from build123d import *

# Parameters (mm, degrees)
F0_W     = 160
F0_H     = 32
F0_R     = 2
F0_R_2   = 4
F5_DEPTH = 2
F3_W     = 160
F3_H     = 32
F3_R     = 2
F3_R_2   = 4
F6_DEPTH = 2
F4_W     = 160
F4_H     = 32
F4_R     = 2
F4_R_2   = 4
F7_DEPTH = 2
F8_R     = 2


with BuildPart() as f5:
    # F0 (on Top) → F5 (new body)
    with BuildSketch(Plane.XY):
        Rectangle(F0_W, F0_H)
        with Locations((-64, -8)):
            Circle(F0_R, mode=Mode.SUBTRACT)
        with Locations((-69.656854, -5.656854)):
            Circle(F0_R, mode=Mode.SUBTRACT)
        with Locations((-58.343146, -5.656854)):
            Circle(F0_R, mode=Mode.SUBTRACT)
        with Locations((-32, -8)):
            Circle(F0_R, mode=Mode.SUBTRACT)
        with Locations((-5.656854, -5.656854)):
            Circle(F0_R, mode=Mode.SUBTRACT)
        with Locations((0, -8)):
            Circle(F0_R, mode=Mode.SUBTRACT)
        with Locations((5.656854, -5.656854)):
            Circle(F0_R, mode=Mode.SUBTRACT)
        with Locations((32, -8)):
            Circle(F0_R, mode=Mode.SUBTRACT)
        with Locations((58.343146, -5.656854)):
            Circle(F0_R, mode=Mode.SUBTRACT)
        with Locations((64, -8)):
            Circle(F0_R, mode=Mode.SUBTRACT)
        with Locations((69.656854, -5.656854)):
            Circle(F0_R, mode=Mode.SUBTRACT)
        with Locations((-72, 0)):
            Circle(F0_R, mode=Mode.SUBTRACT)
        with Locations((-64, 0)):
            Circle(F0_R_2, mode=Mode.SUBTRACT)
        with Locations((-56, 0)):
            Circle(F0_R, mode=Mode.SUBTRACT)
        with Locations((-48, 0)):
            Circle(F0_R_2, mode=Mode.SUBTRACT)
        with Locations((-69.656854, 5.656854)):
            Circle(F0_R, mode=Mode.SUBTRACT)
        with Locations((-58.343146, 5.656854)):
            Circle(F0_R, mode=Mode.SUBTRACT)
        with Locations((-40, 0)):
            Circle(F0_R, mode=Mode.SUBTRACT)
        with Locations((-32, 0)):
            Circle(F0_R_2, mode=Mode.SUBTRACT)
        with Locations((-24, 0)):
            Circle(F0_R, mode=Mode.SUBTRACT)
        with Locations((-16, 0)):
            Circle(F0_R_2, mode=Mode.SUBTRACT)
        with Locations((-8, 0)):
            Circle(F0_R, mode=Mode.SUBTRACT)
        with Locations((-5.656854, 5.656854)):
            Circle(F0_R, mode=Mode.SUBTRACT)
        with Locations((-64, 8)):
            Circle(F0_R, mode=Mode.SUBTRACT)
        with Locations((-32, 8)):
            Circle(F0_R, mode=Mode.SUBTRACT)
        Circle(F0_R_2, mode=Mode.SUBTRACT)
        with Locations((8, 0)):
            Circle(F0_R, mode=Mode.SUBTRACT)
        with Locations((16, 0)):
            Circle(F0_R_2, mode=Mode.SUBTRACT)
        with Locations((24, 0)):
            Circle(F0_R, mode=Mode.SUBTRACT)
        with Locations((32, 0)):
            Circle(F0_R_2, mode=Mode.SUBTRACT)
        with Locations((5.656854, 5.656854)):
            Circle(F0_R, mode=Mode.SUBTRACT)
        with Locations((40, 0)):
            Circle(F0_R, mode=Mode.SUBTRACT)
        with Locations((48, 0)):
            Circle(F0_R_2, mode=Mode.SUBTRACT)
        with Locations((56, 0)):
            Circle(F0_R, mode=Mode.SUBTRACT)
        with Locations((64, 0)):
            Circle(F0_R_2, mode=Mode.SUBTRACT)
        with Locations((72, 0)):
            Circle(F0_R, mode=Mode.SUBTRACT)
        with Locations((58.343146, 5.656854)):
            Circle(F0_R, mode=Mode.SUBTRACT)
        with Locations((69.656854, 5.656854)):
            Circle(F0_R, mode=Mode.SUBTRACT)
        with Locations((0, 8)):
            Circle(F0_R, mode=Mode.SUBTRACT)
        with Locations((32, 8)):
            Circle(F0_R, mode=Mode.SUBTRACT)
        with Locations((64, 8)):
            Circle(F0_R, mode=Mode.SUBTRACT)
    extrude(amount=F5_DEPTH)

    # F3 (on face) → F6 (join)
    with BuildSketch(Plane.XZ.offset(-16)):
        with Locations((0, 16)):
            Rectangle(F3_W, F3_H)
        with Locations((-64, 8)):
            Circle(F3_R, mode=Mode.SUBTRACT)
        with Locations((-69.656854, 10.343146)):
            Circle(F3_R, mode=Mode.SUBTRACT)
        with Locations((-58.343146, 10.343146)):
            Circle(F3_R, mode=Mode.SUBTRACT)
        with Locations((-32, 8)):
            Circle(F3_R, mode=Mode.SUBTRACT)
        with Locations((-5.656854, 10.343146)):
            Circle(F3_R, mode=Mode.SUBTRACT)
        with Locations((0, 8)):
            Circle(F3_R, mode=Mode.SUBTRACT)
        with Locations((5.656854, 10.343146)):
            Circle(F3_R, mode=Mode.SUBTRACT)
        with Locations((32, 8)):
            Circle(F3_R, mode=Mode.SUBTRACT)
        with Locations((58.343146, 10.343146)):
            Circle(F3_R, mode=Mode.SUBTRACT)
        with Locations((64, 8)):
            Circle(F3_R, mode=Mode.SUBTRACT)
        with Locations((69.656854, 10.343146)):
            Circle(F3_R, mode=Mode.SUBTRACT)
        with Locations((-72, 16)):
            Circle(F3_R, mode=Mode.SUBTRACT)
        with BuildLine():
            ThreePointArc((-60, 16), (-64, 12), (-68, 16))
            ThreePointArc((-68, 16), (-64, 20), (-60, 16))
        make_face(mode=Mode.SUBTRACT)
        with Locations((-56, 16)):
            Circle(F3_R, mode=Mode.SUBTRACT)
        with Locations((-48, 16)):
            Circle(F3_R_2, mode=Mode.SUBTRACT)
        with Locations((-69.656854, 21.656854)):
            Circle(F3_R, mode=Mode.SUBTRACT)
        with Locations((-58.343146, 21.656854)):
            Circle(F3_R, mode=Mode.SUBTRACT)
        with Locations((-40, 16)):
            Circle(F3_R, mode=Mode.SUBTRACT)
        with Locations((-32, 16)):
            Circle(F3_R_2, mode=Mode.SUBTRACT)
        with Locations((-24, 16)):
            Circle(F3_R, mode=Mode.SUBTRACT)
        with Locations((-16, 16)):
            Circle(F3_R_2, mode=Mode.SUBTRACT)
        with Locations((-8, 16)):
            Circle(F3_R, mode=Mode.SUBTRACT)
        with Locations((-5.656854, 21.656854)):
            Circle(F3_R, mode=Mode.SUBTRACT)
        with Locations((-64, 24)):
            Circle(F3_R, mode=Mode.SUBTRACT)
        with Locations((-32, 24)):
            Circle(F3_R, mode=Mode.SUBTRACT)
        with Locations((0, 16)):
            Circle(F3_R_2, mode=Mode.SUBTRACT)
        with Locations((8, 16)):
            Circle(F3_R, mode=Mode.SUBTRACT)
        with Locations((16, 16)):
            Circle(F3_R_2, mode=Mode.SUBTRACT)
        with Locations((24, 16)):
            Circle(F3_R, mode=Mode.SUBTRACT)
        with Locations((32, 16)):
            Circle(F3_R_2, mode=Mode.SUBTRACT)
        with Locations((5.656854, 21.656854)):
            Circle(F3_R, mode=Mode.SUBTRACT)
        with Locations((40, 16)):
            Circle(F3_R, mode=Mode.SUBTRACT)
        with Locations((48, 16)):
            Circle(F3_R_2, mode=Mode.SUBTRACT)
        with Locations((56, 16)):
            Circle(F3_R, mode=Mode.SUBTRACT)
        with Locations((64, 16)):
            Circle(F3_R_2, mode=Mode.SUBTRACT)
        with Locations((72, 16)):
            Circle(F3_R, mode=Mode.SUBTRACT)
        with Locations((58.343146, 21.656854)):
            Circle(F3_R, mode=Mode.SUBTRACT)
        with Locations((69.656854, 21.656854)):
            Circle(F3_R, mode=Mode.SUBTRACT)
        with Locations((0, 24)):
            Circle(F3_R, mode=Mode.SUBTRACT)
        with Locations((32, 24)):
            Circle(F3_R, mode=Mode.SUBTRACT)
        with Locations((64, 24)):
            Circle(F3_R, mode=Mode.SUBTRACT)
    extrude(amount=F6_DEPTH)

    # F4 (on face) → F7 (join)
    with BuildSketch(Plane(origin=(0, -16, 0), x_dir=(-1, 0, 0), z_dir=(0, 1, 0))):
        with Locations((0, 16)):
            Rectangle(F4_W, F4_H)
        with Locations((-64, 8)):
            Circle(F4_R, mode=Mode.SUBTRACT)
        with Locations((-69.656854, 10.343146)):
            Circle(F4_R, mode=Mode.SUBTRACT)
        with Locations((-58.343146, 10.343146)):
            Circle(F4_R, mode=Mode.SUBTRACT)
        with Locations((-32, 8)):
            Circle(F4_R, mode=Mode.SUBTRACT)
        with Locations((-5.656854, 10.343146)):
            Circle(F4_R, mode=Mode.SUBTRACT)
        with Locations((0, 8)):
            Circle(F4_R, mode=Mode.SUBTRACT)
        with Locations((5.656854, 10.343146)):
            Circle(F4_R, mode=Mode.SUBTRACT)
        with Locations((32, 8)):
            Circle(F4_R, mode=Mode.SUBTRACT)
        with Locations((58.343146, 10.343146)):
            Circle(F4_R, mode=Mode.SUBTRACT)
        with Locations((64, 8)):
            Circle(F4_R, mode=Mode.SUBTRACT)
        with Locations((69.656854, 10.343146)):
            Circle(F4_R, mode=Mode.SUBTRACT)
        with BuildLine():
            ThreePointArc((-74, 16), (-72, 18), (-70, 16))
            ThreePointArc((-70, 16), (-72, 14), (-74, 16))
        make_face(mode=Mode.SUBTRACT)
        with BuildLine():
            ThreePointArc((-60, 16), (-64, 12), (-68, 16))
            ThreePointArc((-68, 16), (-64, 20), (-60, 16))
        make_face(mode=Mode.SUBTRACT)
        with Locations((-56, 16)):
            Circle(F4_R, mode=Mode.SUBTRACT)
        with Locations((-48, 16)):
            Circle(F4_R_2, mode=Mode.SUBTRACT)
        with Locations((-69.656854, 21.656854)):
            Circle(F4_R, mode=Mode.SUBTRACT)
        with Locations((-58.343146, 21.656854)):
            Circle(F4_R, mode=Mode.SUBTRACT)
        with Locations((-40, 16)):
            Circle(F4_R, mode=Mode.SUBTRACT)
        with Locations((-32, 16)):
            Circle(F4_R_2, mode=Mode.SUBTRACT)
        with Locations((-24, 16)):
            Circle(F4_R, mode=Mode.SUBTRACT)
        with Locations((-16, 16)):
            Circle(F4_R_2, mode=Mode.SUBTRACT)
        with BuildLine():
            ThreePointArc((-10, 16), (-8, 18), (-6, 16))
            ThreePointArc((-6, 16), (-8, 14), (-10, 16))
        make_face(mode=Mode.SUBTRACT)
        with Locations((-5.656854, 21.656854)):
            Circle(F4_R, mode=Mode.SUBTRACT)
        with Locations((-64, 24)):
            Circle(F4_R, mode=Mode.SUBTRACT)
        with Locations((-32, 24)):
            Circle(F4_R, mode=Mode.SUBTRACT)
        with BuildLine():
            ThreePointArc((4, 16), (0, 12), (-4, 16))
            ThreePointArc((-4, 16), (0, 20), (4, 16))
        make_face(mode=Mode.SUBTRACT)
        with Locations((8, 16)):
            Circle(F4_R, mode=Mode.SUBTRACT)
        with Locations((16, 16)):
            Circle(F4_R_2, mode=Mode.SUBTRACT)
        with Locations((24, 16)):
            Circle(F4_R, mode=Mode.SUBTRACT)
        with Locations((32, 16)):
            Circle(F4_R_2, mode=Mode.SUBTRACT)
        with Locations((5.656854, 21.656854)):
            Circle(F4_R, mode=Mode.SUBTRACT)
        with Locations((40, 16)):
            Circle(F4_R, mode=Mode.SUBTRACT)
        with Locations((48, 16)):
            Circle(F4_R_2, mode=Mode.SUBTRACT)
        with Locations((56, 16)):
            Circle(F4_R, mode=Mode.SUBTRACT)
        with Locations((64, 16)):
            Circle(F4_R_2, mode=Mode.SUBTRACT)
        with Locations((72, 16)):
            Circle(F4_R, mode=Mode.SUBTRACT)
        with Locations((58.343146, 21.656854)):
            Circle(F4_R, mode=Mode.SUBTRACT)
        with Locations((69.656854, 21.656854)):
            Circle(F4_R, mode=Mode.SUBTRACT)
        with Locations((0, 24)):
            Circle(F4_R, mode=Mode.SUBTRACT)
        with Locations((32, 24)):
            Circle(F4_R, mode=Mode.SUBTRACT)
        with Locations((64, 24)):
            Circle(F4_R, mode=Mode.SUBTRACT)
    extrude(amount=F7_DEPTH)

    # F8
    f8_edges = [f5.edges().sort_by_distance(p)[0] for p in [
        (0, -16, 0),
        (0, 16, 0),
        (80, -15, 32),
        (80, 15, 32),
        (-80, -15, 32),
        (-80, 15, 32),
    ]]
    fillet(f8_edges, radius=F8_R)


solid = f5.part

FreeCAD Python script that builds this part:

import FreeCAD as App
import Part
import Sketcher
Q = App.Units.Quantity


def edges_at(feature, points):
    """Names of the edges that pass closest to the given points."""
    edges = feature.Shape.Edges
    near = lambda p: min(range(len(edges)), key=lambda i: edges[i].distToShape(Part.Vertex(*p))[0])
    return sorted({f"Edge{near(p) + 1}" for p in points})


def add_polygon(sketch, points):
    """Adds a closed chain of lines whose ends are joined by coincident constraints."""
    first, n = sketch.GeometryCount, len(points)
    for a, b in zip(points, points[1:] + points[:1]):
        sketch.addGeometry(Part.LineSegment(App.Vector(*a, 0), App.Vector(*b, 0)), False)
    for i in range(n):
        sketch.addConstraint(Sketcher.Constraint("Coincident", first + i, 2, first + (i + 1) % n, 1))

doc = App.newDocument("Part")
body = doc.addObject("PartDesign::Body", "Body")

# Sketch on XY plane
sketch1 = doc.addObject("Sketcher::SketchObject", "Sketch")
body.addObject(sketch1)
sketch1.AttachmentSupport = (doc.XY_Plane, [""])
sketch1.MapMode = "FlatFace"
add_polygon(sketch1, [(-80, 16), (-80, -16), (80, -16), (80, 16)])  # lines 0-3
sketch1.addGeometry(Part.Circle(App.Vector(-64, -8, 0), App.Vector(0, 0, 1), 2), False)  # 4
sketch1.addGeometry(Part.Circle(App.Vector(-69.7, -5.7, 0), App.Vector(0, 0, 1), 2), False)  # 5
sketch1.addGeometry(Part.Circle(App.Vector(-58.3, -5.7, 0), App.Vector(0, 0, 1), 2), False)  # 6
sketch1.addGeometry(Part.Circle(App.Vector(-32, -8, 0), App.Vector(0, 0, 1), 2), False)  # 7
sketch1.addGeometry(Part.Circle(App.Vector(-5.7, -5.7, 0), App.Vector(0, 0, 1), 2), False)  # 8
sketch1.addGeometry(Part.Circle(App.Vector(0, -8, 0), App.Vector(0, 0, 1), 2), False)  # 9
sketch1.addGeometry(Part.Circle(App.Vector(32, -8, 0), App.Vector(0, 0, 1), 2), False)  # 10
sketch1.addGeometry(Part.Circle(App.Vector(5.7, -5.7, 0), App.Vector(0, 0, 1), 2), False)  # 11
sketch1.addGeometry(Part.Circle(App.Vector(64, -8, 0), App.Vector(0, 0, 1), 2), False)  # 12
sketch1.addGeometry(Part.Circle(App.Vector(58.3, -5.7, 0), App.Vector(0, 0, 1), 2), False)  # 13
sketch1.addGeometry(Part.Circle(App.Vector(69.7, -5.7, 0), App.Vector(0, 0, 1), 2), False)  # 14
sketch1.addGeometry(Part.Circle(App.Vector(-72, 0, 0), App.Vector(0, 0, 1), 2), False)  # 15
sketch1.addGeometry(Part.Circle(App.Vector(-64, 0, 0), App.Vector(0, 0, 1), 4), False)  # 16
sketch1.addGeometry(Part.Circle(App.Vector(-56, 0, 0), App.Vector(0, 0, 1), 2), False)  # 17
sketch1.addGeometry(Part.Circle(App.Vector(-48, 0, 0), App.Vector(0, 0, 1), 4), False)  # 18
sketch1.addGeometry(Part.Circle(App.Vector(-40, 0, 0), App.Vector(0, 0, 1), 2), False)  # 19
sketch1.addGeometry(Part.Circle(App.Vector(-32, 0, 0), App.Vector(0, 0, 1), 4), False)  # 20
sketch1.addGeometry(Part.Circle(App.Vector(-24, 0, 0), App.Vector(0, 0, 1), 2), False)  # 21
sketch1.addGeometry(Part.Circle(App.Vector(-16, 0, 0), App.Vector(0, 0, 1), 4), False)  # 22
sketch1.addGeometry(Part.Circle(App.Vector(-8, 0, 0), App.Vector(0, 0, 1), 2), False)  # 23
sketch1.addGeometry(Part.Circle(App.Vector(-69.7, 5.7, 0), App.Vector(0, 0, 1), 2), False)  # 24
sketch1.addGeometry(Part.Circle(App.Vector(-58.3, 5.7, 0), App.Vector(0, 0, 1), 2), False)  # 25
sketch1.addGeometry(Part.Circle(App.Vector(-64, 8, 0), App.Vector(0, 0, 1), 2), False)  # 26
sketch1.addGeometry(Part.Circle(App.Vector(-5.7, 5.7, 0), App.Vector(0, 0, 1), 2), False)  # 27
sketch1.addGeometry(Part.Circle(App.Vector(-32, 8, 0), App.Vector(0, 0, 1), 2), False)  # 28
sketch1.addGeometry(Part.Circle(App.Vector(0, 0, 0), App.Vector(0, 0, 1), 4), False)  # 29
sketch1.addGeometry(Part.Circle(App.Vector(8, 0, 0), App.Vector(0, 0, 1), 2), False)  # 30
sketch1.addGeometry(Part.Circle(App.Vector(16, 0, 0), App.Vector(0, 0, 1), 4), False)  # 31
sketch1.addGeometry(Part.Circle(App.Vector(24, 0, 0), App.Vector(0, 0, 1), 2), False)  # 32
sketch1.addGeometry(Part.Circle(App.Vector(32, 0, 0), App.Vector(0, 0, 1), 4), False)  # 33
sketch1.addGeometry(Part.Circle(App.Vector(40, 0, 0), App.Vector(0, 0, 1), 2), False)  # 34
sketch1.addGeometry(Part.Circle(App.Vector(48, 0, 0), App.Vector(0, 0, 1), 4), False)  # 35
sketch1.addGeometry(Part.Circle(App.Vector(56, 0, 0), App.Vector(0, 0, 1), 2), False)  # 36
sketch1.addGeometry(Part.Circle(App.Vector(64, 0, 0), App.Vector(0, 0, 1), 4), False)  # 37
sketch1.addGeometry(Part.Circle(App.Vector(72, 0, 0), App.Vector(0, 0, 1), 2), False)  # 38
sketch1.addGeometry(Part.Circle(App.Vector(5.7, 5.7, 0), App.Vector(0, 0, 1), 2), False)  # 39
sketch1.addGeometry(Part.Circle(App.Vector(0, 8, 0), App.Vector(0, 0, 1), 2), False)  # 40
sketch1.addGeometry(Part.Circle(App.Vector(32, 8, 0), App.Vector(0, 0, 1), 2), False)  # 41
sketch1.addGeometry(Part.Circle(App.Vector(58.3, 5.7, 0), App.Vector(0, 0, 1), 2), False)  # 42
sketch1.addGeometry(Part.Circle(App.Vector(69.7, 5.7, 0), App.Vector(0, 0, 1), 2), False)  # 43
sketch1.addGeometry(Part.Circle(App.Vector(64, 8, 0), App.Vector(0, 0, 1), 2), False)  # 44
sketch1.addConstraint(Sketcher.Constraint("Vertical", 0))
sketch1.addConstraint(Sketcher.Constraint("Horizontal", 1))
sketch1.addConstraint(Sketcher.Constraint("Vertical", 2))
sketch1.addConstraint(Sketcher.Constraint("Horizontal", 3))
sketch1.addConstraint(Sketcher.Constraint("Coincident", 29, 3, -1, 1))
sketch1.addConstraint(Sketcher.Constraint("Equal", 4, 5))
sketch1.addConstraint(Sketcher.Constraint("Equal", 5, 6))
sketch1.addConstraint(Sketcher.Constraint("Equal", 6, 7))
sketch1.addConstraint(Sketcher.Constraint("Equal", 7, 8))
sketch1.addConstraint(Sketcher.Constraint("Equal", 8, 9))
sketch1.addConstraint(Sketcher.Constraint("Equal", 9, 10))
sketch1.addConstraint(Sketcher.Constraint("Equal", 10, 11))
sketch1.addConstraint(Sketcher.Constraint("Equal", 11, 12))
sketch1.addConstraint(Sketcher.Constraint("Equal", 12, 13))
sketch1.addConstraint(Sketcher.Constraint("Equal", 13, 14))
sketch1.addConstraint(Sketcher.Constraint("Equal", 14, 15))
sketch1.addConstraint(Sketcher.Constraint("Equal", 15, 17))
sketch1.addConstraint(Sketcher.Constraint("Equal", 16, 18))
sketch1.addConstraint(Sketcher.Constraint("Equal", 17, 19))
sketch1.addConstraint(Sketcher.Constraint("Equal", 18, 20))
sketch1.addConstraint(Sketcher.Constraint("Equal", 19, 21))
sketch1.addConstraint(Sketcher.Constraint("Equal", 20, 22))
sketch1.addConstraint(Sketcher.Constraint("Equal", 21, 23))
sketch1.addConstraint(Sketcher.Constraint("Equal", 23, 24))
sketch1.addConstraint(Sketcher.Constraint("Equal", 24, 25))
sketch1.addConstraint(Sketcher.Constraint("Equal", 25, 26))
sketch1.addConstraint(Sketcher.Constraint("Equal", 26, 27))
sketch1.addConstraint(Sketcher.Constraint("Equal", 27, 28))
sketch1.addConstraint(Sketcher.Constraint("Equal", 22, 29))
sketch1.addConstraint(Sketcher.Constraint("Equal", 28, 30))
sketch1.addConstraint(Sketcher.Constraint("Equal", 29, 31))
sketch1.addConstraint(Sketcher.Constraint("Equal", 30, 32))
sketch1.addConstraint(Sketcher.Constraint("Equal", 31, 33))
sketch1.addConstraint(Sketcher.Constraint("Equal", 32, 34))
sketch1.addConstraint(Sketcher.Constraint("Equal", 33, 35))
sketch1.addConstraint(Sketcher.Constraint("Equal", 34, 36))
sketch1.addConstraint(Sketcher.Constraint("Equal", 35, 37))
sketch1.addConstraint(Sketcher.Constraint("Equal", 36, 38))
sketch1.addConstraint(Sketcher.Constraint("Equal", 38, 39))
sketch1.addConstraint(Sketcher.Constraint("Equal", 39, 40))
sketch1.addConstraint(Sketcher.Constraint("Equal", 40, 41))
sketch1.addConstraint(Sketcher.Constraint("Equal", 41, 42))
sketch1.addConstraint(Sketcher.Constraint("Equal", 42, 43))
sketch1.addConstraint(Sketcher.Constraint("Equal", 43, 44))
sketch1.addConstraint(Sketcher.Constraint("Symmetric", 14, 3, 24, 3, -1, 1))
sketch1.addConstraint(Sketcher.Constraint("Symmetric", 13, 3, 25, 3, -1, 1))
sketch1.addConstraint(Sketcher.Constraint("Symmetric", 12, 3, 26, 3, -1, 1))
sketch1.addConstraint(Sketcher.Constraint("Symmetric", 11, 3, 27, 3, -1, 1))
sketch1.addConstraint(Sketcher.Constraint("Symmetric", 10, 3, 28, 3, -1, 1))
sketch1.addConstraint(Sketcher.Constraint("Symmetric", 23, 3, 30, 3, -1, 1))
sketch1.addConstraint(Sketcher.Constraint("Symmetric", 22, 3, 31, 3, -1, 1))
sketch1.addConstraint(Sketcher.Constraint("Symmetric", 21, 3, 32, 3, -1, 1))
sketch1.addConstraint(Sketcher.Constraint("Symmetric", 20, 3, 33, 3, -1, 1))
sketch1.addConstraint(Sketcher.Constraint("Symmetric", 19, 3, 34, 3, -1, 1))
sketch1.addConstraint(Sketcher.Constraint("Symmetric", 18, 3, 35, 3, -1, 1))
sketch1.addConstraint(Sketcher.Constraint("Symmetric", 17, 3, 36, 3, -1, 1))
sketch1.addConstraint(Sketcher.Constraint("Symmetric", 16, 3, 37, 3, -1, 1))
sketch1.addConstraint(Sketcher.Constraint("Symmetric", 15, 3, 38, 3, -1, 1))
sketch1.addConstraint(Sketcher.Constraint("Symmetric", 8, 3, 39, 3, -1, 1))
sketch1.addConstraint(Sketcher.Constraint("Symmetric", 9, 3, 40, 3, -1, 1))
sketch1.addConstraint(Sketcher.Constraint("Symmetric", 7, 3, 41, 3, -1, 1))
sketch1.addConstraint(Sketcher.Constraint("Symmetric", 6, 3, 42, 3, -1, 1))
sketch1.addConstraint(Sketcher.Constraint("Symmetric", 5, 3, 43, 3, -1, 1))
sketch1.addConstraint(Sketcher.Constraint("Symmetric", 4, 3, 44, 3, -1, 1))
sketch1.addConstraint(Sketcher.Constraint("Symmetric", 0, 2, 2, 2, -1, 1))
sketch1.addConstraint(Sketcher.Constraint("Symmetric", 7, 3, 10, 3, -2))
sketch1.addConstraint(Sketcher.Constraint("Symmetric", 8, 3, 11, 3, -2))
sketch1.addConstraint(Sketcher.Constraint("Symmetric", 4, 3, 12, 3, -2))
sketch1.addConstraint(Sketcher.Constraint("Symmetric", 6, 3, 13, 3, -2))
sketch1.addConstraint(Sketcher.Constraint("Symmetric", 5, 3, 14, 3, -2))
sketch1.addConstraint(Sketcher.Constraint("PointOnObject", 9, 3, -2))
sketch1.addConstraint(Sketcher.Constraint("PointOnObject", 15, 3, -1))
sketch1.addConstraint(Sketcher.Constraint("PointOnObject", 16, 3, -1))
sketch1.addConstraint(Sketcher.Constraint("PointOnObject", 17, 3, -1))
sketch1.addConstraint(Sketcher.Constraint("PointOnObject", 18, 3, -1))
sketch1.addConstraint(Sketcher.Constraint("PointOnObject", 19, 3, -1))
sketch1.addConstraint(Sketcher.Constraint("PointOnObject", 20, 3, -1))
sketch1.addConstraint(Sketcher.Constraint("PointOnObject", 21, 3, -1))
sketch1.addConstraint(Sketcher.Constraint("PointOnObject", 22, 3, -1))
sketch1.addConstraint(Sketcher.Constraint("PointOnObject", 23, 3, -1))
sketch1.addConstraint(Sketcher.Constraint("Horizontal", 5, 3, 6, 3))
sketch1.addConstraint(Sketcher.Constraint("Horizontal", 4, 3, 7, 3))
sketch1.addConstraint(Sketcher.Constraint("Horizontal", 6, 3, 8, 3))
sketch1.addConstraint(Sketcher.Constraint("Horizontal", 7, 3, 9, 3))
sketch1.addConstraint(Sketcher.Constraint("Vertical", 4, 3, 16, 3))
sketch1.addConstraint(Sketcher.Constraint("Vertical", 7, 3, 20, 3))
sketch1.addConstraint(Sketcher.Constraint("Diameter", 4, Q("4 mm")))
sketch1.addConstraint(Sketcher.Constraint("Diameter", 16, Q("8 mm")))
sketch1.addConstraint(Sketcher.Constraint("DistanceX", 1, 1, 1, 2, Q("160 mm")))
sketch1.addConstraint(Sketcher.Constraint("DistanceY", 0, 2, 0, 1, Q("32 mm")))
sketch1.addConstraint(Sketcher.Constraint("DistanceX", 4, 3, -1, 1, Q("64 mm")))
sketch1.addConstraint(Sketcher.Constraint("DistanceY", 4, 3, -1, 1, Q("8 mm")))
sketch1.addConstraint(Sketcher.Constraint("DistanceX", 7, 3, -1, 1, Q("32 mm")))
sketch1.addConstraint(Sketcher.Constraint("DistanceX", 15, 3, -1, 1, Q("72 mm")))
sketch1.addConstraint(Sketcher.Constraint("DistanceX", 17, 3, -1, 1, Q("56 mm")))
sketch1.addConstraint(Sketcher.Constraint("DistanceX", 18, 3, -1, 1, Q("48 mm")))
sketch1.addConstraint(Sketcher.Constraint("DistanceX", 19, 3, -1, 1, Q("40 mm")))
sketch1.addConstraint(Sketcher.Constraint("DistanceX", 21, 3, -1, 1, Q("24 mm")))
sketch1.addConstraint(Sketcher.Constraint("DistanceX", 22, 3, -1, 1, Q("16 mm")))
sketch1.addConstraint(Sketcher.Constraint("DistanceX", 23, 3, -1, 1, Q("8 mm")))
sketch1.addConstraint(Sketcher.Constraint("DistanceX", 5, 3, 8, 3, Q("64 mm")))
sketch1.addConstraint(Sketcher.Constraint("DistanceX", 6, 3, 11, 3, Q("64 mm")))
sketch1.addConstraint(Sketcher.Constraint("DistanceX", 6, 3, 8, 3, Q("52.686292 mm")))
sketch1.addConstraint(Sketcher.Constraint("DistanceY", 5, 3, -1, 1, Q("5.656854 mm")))
pad1 = doc.addObject("PartDesign::Pad", "Pad")
body.addObject(pad1)
pad1.Profile = sketch1
pad1.Length = 2

# Sketch on XZ plane
sketch2 = doc.addObject("Sketcher::SketchObject", "Sketch001")
body.addObject(sketch2)
sketch2.AttachmentSupport = (doc.XZ_Plane, [""])
sketch2.MapMode = "FlatFace"
sketch2.AttachmentOffset = App.Placement(App.Vector(0, 0, -16), App.Rotation())
add_polygon(sketch2, [(-80, 32), (-80, 0), (80, 0), (80, 32)])  # lines 0-3
sketch2.addGeometry(Part.Circle(App.Vector(-64, 8, 0), App.Vector(0, 0, 1), 2), False)  # 4
sketch2.addGeometry(Part.Circle(App.Vector(-69.7, 10.3, 0), App.Vector(0, 0, 1), 2), False)  # 5
sketch2.addGeometry(Part.Circle(App.Vector(-58.3, 10.3, 0), App.Vector(0, 0, 1), 2), False)  # 6
sketch2.addGeometry(Part.Circle(App.Vector(-32, 8, 0), App.Vector(0, 0, 1), 2), False)  # 7
sketch2.addGeometry(Part.Circle(App.Vector(-5.7, 10.3, 0), App.Vector(0, 0, 1), 2), False)  # 8
sketch2.addGeometry(Part.Circle(App.Vector(0, 8, 0), App.Vector(0, 0, 1), 2), False)  # 9
sketch2.addGeometry(Part.Circle(App.Vector(32, 8, 0), App.Vector(0, 0, 1), 2), False)  # 10
sketch2.addGeometry(Part.Circle(App.Vector(5.7, 10.3, 0), App.Vector(0, 0, 1), 2), False)  # 11
sketch2.addGeometry(Part.Circle(App.Vector(64, 8, 0), App.Vector(0, 0, 1), 2), False)  # 12
sketch2.addGeometry(Part.Circle(App.Vector(58.3, 10.3, 0), App.Vector(0, 0, 1), 2), False)  # 13
sketch2.addGeometry(Part.Circle(App.Vector(69.7, 10.3, 0), App.Vector(0, 0, 1), 2), False)  # 14
sketch2.addGeometry(Part.Circle(App.Vector(-72, 16, 0), App.Vector(0, 0, 1), 2), False)  # 15
sketch2.addGeometry(Part.Circle(App.Vector(-64, 16, 0), App.Vector(0, 0, 1), 4), False)  # 16
sketch2.addGeometry(Part.Circle(App.Vector(-56, 16, 0), App.Vector(0, 0, 1), 2), False)  # 17
sketch2.addGeometry(Part.Circle(App.Vector(-48, 16, 0), App.Vector(0, 0, 1), 4), False)  # 18
sketch2.addGeometry(Part.Circle(App.Vector(-40, 16, 0), App.Vector(0, 0, 1), 2), False)  # 19
sketch2.addGeometry(Part.Circle(App.Vector(-32, 16, 0), App.Vector(0, 0, 1), 4), False)  # 20
sketch2.addGeometry(Part.Circle(App.Vector(-24, 16, 0), App.Vector(0, 0, 1), 2), False)  # 21
sketch2.addGeometry(Part.Circle(App.Vector(-16, 16, 0), App.Vector(0, 0, 1), 4), False)  # 22
sketch2.addGeometry(Part.Circle(App.Vector(-8, 16, 0), App.Vector(0, 0, 1), 2), False)  # 23
sketch2.addGeometry(Part.Circle(App.Vector(-69.7, 21.7, 0), App.Vector(0, 0, 1), 2), False)  # 24
sketch2.addGeometry(Part.Circle(App.Vector(-58.3, 21.7, 0), App.Vector(0, 0, 1), 2), False)  # 25
sketch2.addGeometry(Part.Circle(App.Vector(-64, 24, 0), App.Vector(0, 0, 1), 2), False)  # 26
sketch2.addGeometry(Part.Circle(App.Vector(-5.7, 21.7, 0), App.Vector(0, 0, 1), 2), False)  # 27
sketch2.addGeometry(Part.Circle(App.Vector(-32, 24, 0), App.Vector(0, 0, 1), 2), False)  # 28
sketch2.addGeometry(Part.Circle(App.Vector(0, 16, 0), App.Vector(0, 0, 1), 4), False)  # 29
sketch2.addGeometry(Part.Circle(App.Vector(8, 16, 0), App.Vector(0, 0, 1), 2), False)  # 30
sketch2.addGeometry(Part.Circle(App.Vector(16, 16, 0), App.Vector(0, 0, 1), 4), False)  # 31
sketch2.addGeometry(Part.Circle(App.Vector(24, 16, 0), App.Vector(0, 0, 1), 2), False)  # 32
sketch2.addGeometry(Part.Circle(App.Vector(32, 16, 0), App.Vector(0, 0, 1), 4), False)  # 33
sketch2.addGeometry(Part.Circle(App.Vector(40, 16, 0), App.Vector(0, 0, 1), 2), False)  # 34
sketch2.addGeometry(Part.Circle(App.Vector(48, 16, 0), App.Vector(0, 0, 1), 4), False)  # 35
sketch2.addGeometry(Part.Circle(App.Vector(56, 16, 0), App.Vector(0, 0, 1), 2), False)  # 36
sketch2.addGeometry(Part.Circle(App.Vector(64, 16, 0), App.Vector(0, 0, 1), 4), False)  # 37
sketch2.addGeometry(Part.Circle(App.Vector(72, 16, 0), App.Vector(0, 0, 1), 2), False)  # 38
sketch2.addGeometry(Part.Circle(App.Vector(5.7, 21.7, 0), App.Vector(0, 0, 1), 2), False)  # 39
sketch2.addGeometry(Part.Circle(App.Vector(0, 24, 0), App.Vector(0, 0, 1), 2), False)  # 40
sketch2.addGeometry(Part.Circle(App.Vector(32, 24, 0), App.Vector(0, 0, 1), 2), False)  # 41
sketch2.addGeometry(Part.Circle(App.Vector(58.3, 21.7, 0), App.Vector(0, 0, 1), 2), False)  # 42
sketch2.addGeometry(Part.Circle(App.Vector(69.7, 21.7, 0), App.Vector(0, 0, 1), 2), False)  # 43
sketch2.addGeometry(Part.Circle(App.Vector(64, 24, 0), App.Vector(0, 0, 1), 2), False)  # 44
sketch2.addConstraint(Sketcher.Constraint("Vertical", 0))
sketch2.addConstraint(Sketcher.Constraint("Horizontal", 1))
sketch2.addConstraint(Sketcher.Constraint("Vertical", 2))
sketch2.addConstraint(Sketcher.Constraint("Horizontal", 3))
sketch2.addConstraint(Sketcher.Constraint("Equal", 4, 5))
sketch2.addConstraint(Sketcher.Constraint("Equal", 5, 6))
sketch2.addConstraint(Sketcher.Constraint("Equal", 6, 7))
sketch2.addConstraint(Sketcher.Constraint("Equal", 7, 8))
sketch2.addConstraint(Sketcher.Constraint("Equal", 8, 9))
sketch2.addConstraint(Sketcher.Constraint("Equal", 9, 10))
sketch2.addConstraint(Sketcher.Constraint("Equal", 10, 11))
sketch2.addConstraint(Sketcher.Constraint("Equal", 11, 12))
sketch2.addConstraint(Sketcher.Constraint("Equal", 12, 13))
sketch2.addConstraint(Sketcher.Constraint("Equal", 13, 14))
sketch2.addConstraint(Sketcher.Constraint("Equal", 14, 15))
sketch2.addConstraint(Sketcher.Constraint("Equal", 15, 17))
sketch2.addConstraint(Sketcher.Constraint("Equal", 16, 18))
sketch2.addConstraint(Sketcher.Constraint("Equal", 17, 19))
sketch2.addConstraint(Sketcher.Constraint("Equal", 18, 20))
sketch2.addConstraint(Sketcher.Constraint("Equal", 19, 21))
sketch2.addConstraint(Sketcher.Constraint("Equal", 20, 22))
sketch2.addConstraint(Sketcher.Constraint("Equal", 21, 23))
sketch2.addConstraint(Sketcher.Constraint("Equal", 23, 24))
sketch2.addConstraint(Sketcher.Constraint("Equal", 24, 25))
sketch2.addConstraint(Sketcher.Constraint("Equal", 25, 26))
sketch2.addConstraint(Sketcher.Constraint("Equal", 26, 27))
sketch2.addConstraint(Sketcher.Constraint("Equal", 27, 28))
sketch2.addConstraint(Sketcher.Constraint("Equal", 22, 29))
sketch2.addConstraint(Sketcher.Constraint("Equal", 28, 30))
sketch2.addConstraint(Sketcher.Constraint("Equal", 29, 31))
sketch2.addConstraint(Sketcher.Constraint("Equal", 30, 32))
sketch2.addConstraint(Sketcher.Constraint("Equal", 31, 33))
sketch2.addConstraint(Sketcher.Constraint("Equal", 32, 34))
sketch2.addConstraint(Sketcher.Constraint("Equal", 33, 35))
sketch2.addConstraint(Sketcher.Constraint("Equal", 34, 36))
sketch2.addConstraint(Sketcher.Constraint("Equal", 35, 37))
sketch2.addConstraint(Sketcher.Constraint("Equal", 36, 38))
sketch2.addConstraint(Sketcher.Constraint("Equal", 38, 39))
sketch2.addConstraint(Sketcher.Constraint("Equal", 39, 40))
sketch2.addConstraint(Sketcher.Constraint("Equal", 40, 41))
sketch2.addConstraint(Sketcher.Constraint("Equal", 41, 42))
sketch2.addConstraint(Sketcher.Constraint("Equal", 42, 43))
sketch2.addConstraint(Sketcher.Constraint("Equal", 43, 44))
sketch2.addConstraint(Sketcher.Constraint("Symmetric", 0, 2, 1, 2, -1, 1))
sketch2.addConstraint(Sketcher.Constraint("Symmetric", 7, 3, 10, 3, -2))
sketch2.addConstraint(Sketcher.Constraint("Symmetric", 8, 3, 11, 3, -2))
sketch2.addConstraint(Sketcher.Constraint("Symmetric", 4, 3, 12, 3, -2))
sketch2.addConstraint(Sketcher.Constraint("Symmetric", 6, 3, 13, 3, -2))
sketch2.addConstraint(Sketcher.Constraint("Symmetric", 5, 3, 14, 3, -2))
sketch2.addConstraint(Sketcher.Constraint("Symmetric", 23, 3, 30, 3, -2))
sketch2.addConstraint(Sketcher.Constraint("Symmetric", 22, 3, 31, 3, -2))
sketch2.addConstraint(Sketcher.Constraint("Symmetric", 21, 3, 32, 3, -2))
sketch2.addConstraint(Sketcher.Constraint("Symmetric", 20, 3, 33, 3, -2))
sketch2.addConstraint(Sketcher.Constraint("Symmetric", 19, 3, 34, 3, -2))
sketch2.addConstraint(Sketcher.Constraint("Symmetric", 18, 3, 35, 3, -2))
sketch2.addConstraint(Sketcher.Constraint("Symmetric", 17, 3, 36, 3, -2))
sketch2.addConstraint(Sketcher.Constraint("Symmetric", 16, 3, 37, 3, -2))
sketch2.addConstraint(Sketcher.Constraint("Symmetric", 15, 3, 38, 3, -2))
sketch2.addConstraint(Sketcher.Constraint("Symmetric", 27, 3, 39, 3, -2))
sketch2.addConstraint(Sketcher.Constraint("Symmetric", 28, 3, 41, 3, -2))
sketch2.addConstraint(Sketcher.Constraint("Symmetric", 25, 3, 42, 3, -2))
sketch2.addConstraint(Sketcher.Constraint("Symmetric", 24, 3, 43, 3, -2))
sketch2.addConstraint(Sketcher.Constraint("Symmetric", 26, 3, 44, 3, -2))
sketch2.addConstraint(Sketcher.Constraint("PointOnObject", 9, 3, -2))
sketch2.addConstraint(Sketcher.Constraint("PointOnObject", 29, 3, -2))
sketch2.addConstraint(Sketcher.Constraint("PointOnObject", 40, 3, -2))
sketch2.addConstraint(Sketcher.Constraint("Horizontal", 5, 3, 6, 3))
sketch2.addConstraint(Sketcher.Constraint("Horizontal", 4, 3, 7, 3))
sketch2.addConstraint(Sketcher.Constraint("Horizontal", 6, 3, 8, 3))
sketch2.addConstraint(Sketcher.Constraint("Horizontal", 7, 3, 9, 3))
sketch2.addConstraint(Sketcher.Constraint("Horizontal", 15, 3, 16, 3))
sketch2.addConstraint(Sketcher.Constraint("Horizontal", 16, 3, 17, 3))
sketch2.addConstraint(Sketcher.Constraint("Horizontal", 17, 3, 18, 3))
sketch2.addConstraint(Sketcher.Constraint("Horizontal", 18, 3, 19, 3))
sketch2.addConstraint(Sketcher.Constraint("Horizontal", 19, 3, 20, 3))
sketch2.addConstraint(Sketcher.Constraint("Horizontal", 20, 3, 21, 3))
sketch2.addConstraint(Sketcher.Constraint("Horizontal", 21, 3, 22, 3))
sketch2.addConstraint(Sketcher.Constraint("Horizontal", 22, 3, 23, 3))
sketch2.addConstraint(Sketcher.Constraint("Horizontal", 24, 3, 25, 3))
sketch2.addConstraint(Sketcher.Constraint("Horizontal", 25, 3, 27, 3))
sketch2.addConstraint(Sketcher.Constraint("Horizontal", 26, 3, 28, 3))
sketch2.addConstraint(Sketcher.Constraint("Horizontal", 23, 3, 29, 3))
sketch2.addConstraint(Sketcher.Constraint("Horizontal", 28, 3, 40, 3))
sketch2.addConstraint(Sketcher.Constraint("Vertical", 4, 3, 16, 3))
sketch2.addConstraint(Sketcher.Constraint("Vertical", 7, 3, 20, 3))
sketch2.addConstraint(Sketcher.Constraint("Vertical", 5, 3, 24, 3))
sketch2.addConstraint(Sketcher.Constraint("Vertical", 6, 3, 25, 3))
sketch2.addConstraint(Sketcher.Constraint("Vertical", 16, 3, 26, 3))
sketch2.addConstraint(Sketcher.Constraint("Vertical", 8, 3, 27, 3))
sketch2.addConstraint(Sketcher.Constraint("Vertical", 20, 3, 28, 3))
sketch2.addConstraint(Sketcher.Constraint("Diameter", 4, Q("4 mm")))
sketch2.addConstraint(Sketcher.Constraint("Diameter", 16, Q("8 mm")))
sketch2.addConstraint(Sketcher.Constraint("DistanceX", 1, 1, 1, 2, Q("160 mm")))
sketch2.addConstraint(Sketcher.Constraint("DistanceY", 0, 2, 0, 1, Q("32 mm")))
sketch2.addConstraint(Sketcher.Constraint("DistanceX", 4, 3, -1, 1, Q("64 mm")))
sketch2.addConstraint(Sketcher.Constraint("DistanceY", -1, 1, 4, 3, Q("8 mm")))
sketch2.addConstraint(Sketcher.Constraint("DistanceX", 7, 3, -1, 1, Q("32 mm")))
sketch2.addConstraint(Sketcher.Constraint("DistanceX", 15, 3, -1, 1, Q("72 mm")))
sketch2.addConstraint(Sketcher.Constraint("DistanceY", -1, 1, 15, 3, Q("16 mm")))
sketch2.addConstraint(Sketcher.Constraint("DistanceX", 17, 3, -1, 1, Q("56 mm")))
sketch2.addConstraint(Sketcher.Constraint("DistanceX", 18, 3, -1, 1, Q("48 mm")))
sketch2.addConstraint(Sketcher.Constraint("DistanceX", 19, 3, -1, 1, Q("40 mm")))
sketch2.addConstraint(Sketcher.Constraint("DistanceX", 21, 3, -1, 1, Q("24 mm")))
sketch2.addConstraint(Sketcher.Constraint("DistanceX", 22, 3, -1, 1, Q("16 mm")))
sketch2.addConstraint(Sketcher.Constraint("DistanceX", 23, 3, -1, 1, Q("8 mm")))
sketch2.addConstraint(Sketcher.Constraint("DistanceY", -1, 1, 26, 3, Q("24 mm")))
sketch2.addConstraint(Sketcher.Constraint("DistanceX", 5, 3, 8, 3, Q("64 mm")))
sketch2.addConstraint(Sketcher.Constraint("DistanceX", 6, 3, 11, 3, Q("64 mm")))
sketch2.addConstraint(Sketcher.Constraint("DistanceX", 6, 3, 8, 3, Q("52.686292 mm")))
sketch2.addConstraint(Sketcher.Constraint("DistanceY", -1, 1, 5, 3, Q("10.343146 mm")))
sketch2.addConstraint(Sketcher.Constraint("DistanceY", -1, 1, 24, 3, Q("21.656854 mm")))
pad2 = doc.addObject("PartDesign::Pad", "Pad001")
body.addObject(pad2)
pad2.Profile = sketch2
pad2.Length = 2

# Sketch on XZ plane
sketch3 = doc.addObject("Sketcher::SketchObject", "Sketch002")
body.addObject(sketch3)
sketch3.AttachmentSupport = (doc.XZ_Plane, [""])
sketch3.MapMode = "FlatFace"
sketch3.AttachmentOffset = App.Placement(App.Vector(0, 0, 16), App.Rotation())
add_polygon(sketch3, [(80, 32), (80, 0), (-80, 0), (-80, 32)])  # lines 0-3
sketch3.addGeometry(Part.Circle(App.Vector(64, 8, 0), App.Vector(0, 0, 1), 2), False)  # 4
sketch3.addGeometry(Part.Circle(App.Vector(69.7, 10.3, 0), App.Vector(0, 0, 1), 2), False)  # 5
sketch3.addGeometry(Part.Circle(App.Vector(58.3, 10.3, 0), App.Vector(0, 0, 1), 2), False)  # 6
sketch3.addGeometry(Part.Circle(App.Vector(32, 8, 0), App.Vector(0, 0, 1), 2), False)  # 7
sketch3.addGeometry(Part.Circle(App.Vector(5.7, 10.3, 0), App.Vector(0, 0, 1), 2), False)  # 8
sketch3.addGeometry(Part.Circle(App.Vector(0, 8, 0), App.Vector(0, 0, 1), 2), False)  # 9
sketch3.addGeometry(Part.Circle(App.Vector(-32, 8, 0), App.Vector(0, 0, 1), 2), False)  # 10
sketch3.addGeometry(Part.Circle(App.Vector(-5.7, 10.3, 0), App.Vector(0, 0, 1), 2), False)  # 11
sketch3.addGeometry(Part.Circle(App.Vector(-64, 8, 0), App.Vector(0, 0, 1), 2), False)  # 12
sketch3.addGeometry(Part.Circle(App.Vector(-58.3, 10.3, 0), App.Vector(0, 0, 1), 2), False)  # 13
sketch3.addGeometry(Part.Circle(App.Vector(-69.7, 10.3, 0), App.Vector(0, 0, 1), 2), False)  # 14
sketch3.addGeometry(Part.Circle(App.Vector(72, 16, 0), App.Vector(0, 0, 1), 2), False)  # 15
sketch3.addGeometry(Part.Circle(App.Vector(64, 16, 0), App.Vector(0, 0, 1), 4), False)  # 16
sketch3.addGeometry(Part.Circle(App.Vector(56, 16, 0), App.Vector(0, 0, 1), 2), False)  # 17
sketch3.addGeometry(Part.Circle(App.Vector(48, 16, 0), App.Vector(0, 0, 1), 4), False)  # 18
sketch3.addGeometry(Part.Circle(App.Vector(40, 16, 0), App.Vector(0, 0, 1), 2), False)  # 19
sketch3.addGeometry(Part.Circle(App.Vector(32, 16, 0), App.Vector(0, 0, 1), 4), False)  # 20
sketch3.addGeometry(Part.Circle(App.Vector(24, 16, 0), App.Vector(0, 0, 1), 2), False)  # 21
sketch3.addGeometry(Part.Circle(App.Vector(16, 16, 0), App.Vector(0, 0, 1), 4), False)  # 22
sketch3.addGeometry(Part.Circle(App.Vector(8, 16, 0), App.Vector(0, 0, 1), 2), False)  # 23
sketch3.addGeometry(Part.Circle(App.Vector(69.7, 21.7, 0), App.Vector(0, 0, 1), 2), False)  # 24
sketch3.addGeometry(Part.Circle(App.Vector(58.3, 21.7, 0), App.Vector(0, 0, 1), 2), False)  # 25
sketch3.addGeometry(Part.Circle(App.Vector(64, 24, 0), App.Vector(0, 0, 1), 2), False)  # 26
sketch3.addGeometry(Part.Circle(App.Vector(5.7, 21.7, 0), App.Vector(0, 0, 1), 2), False)  # 27
sketch3.addGeometry(Part.Circle(App.Vector(32, 24, 0), App.Vector(0, 0, 1), 2), False)  # 28
sketch3.addGeometry(Part.Circle(App.Vector(0, 16, 0), App.Vector(0, 0, 1), 4), False)  # 29
sketch3.addGeometry(Part.Circle(App.Vector(-8, 16, 0), App.Vector(0, 0, 1), 2), False)  # 30
sketch3.addGeometry(Part.Circle(App.Vector(-16, 16, 0), App.Vector(0, 0, 1), 4), False)  # 31
sketch3.addGeometry(Part.Circle(App.Vector(-24, 16, 0), App.Vector(0, 0, 1), 2), False)  # 32
sketch3.addGeometry(Part.Circle(App.Vector(-32, 16, 0), App.Vector(0, 0, 1), 4), False)  # 33
sketch3.addGeometry(Part.Circle(App.Vector(-40, 16, 0), App.Vector(0, 0, 1), 2), False)  # 34
sketch3.addGeometry(Part.Circle(App.Vector(-48, 16, 0), App.Vector(0, 0, 1), 4), False)  # 35
sketch3.addGeometry(Part.Circle(App.Vector(-56, 16, 0), App.Vector(0, 0, 1), 2), False)  # 36
sketch3.addGeometry(Part.Circle(App.Vector(-64, 16, 0), App.Vector(0, 0, 1), 4), False)  # 37
sketch3.addGeometry(Part.Circle(App.Vector(-72, 16, 0), App.Vector(0, 0, 1), 2), False)  # 38
sketch3.addGeometry(Part.Circle(App.Vector(-5.7, 21.7, 0), App.Vector(0, 0, 1), 2), False)  # 39
sketch3.addGeometry(Part.Circle(App.Vector(0, 24, 0), App.Vector(0, 0, 1), 2), False)  # 40
sketch3.addGeometry(Part.Circle(App.Vector(-32, 24, 0), App.Vector(0, 0, 1), 2), False)  # 41
sketch3.addGeometry(Part.Circle(App.Vector(-58.3, 21.7, 0), App.Vector(0, 0, 1), 2), False)  # 42
sketch3.addGeometry(Part.Circle(App.Vector(-69.7, 21.7, 0), App.Vector(0, 0, 1), 2), False)  # 43
sketch3.addGeometry(Part.Circle(App.Vector(-64, 24, 0), App.Vector(0, 0, 1), 2), False)  # 44
sketch3.addConstraint(Sketcher.Constraint("Vertical", 0))
sketch3.addConstraint(Sketcher.Constraint("Horizontal", 1))
sketch3.addConstraint(Sketcher.Constraint("Vertical", 2))
sketch3.addConstraint(Sketcher.Constraint("Horizontal", 3))
sketch3.addConstraint(Sketcher.Constraint("Equal", 4, 5))
sketch3.addConstraint(Sketcher.Constraint("Equal", 5, 6))
sketch3.addConstraint(Sketcher.Constraint("Equal", 6, 7))
sketch3.addConstraint(Sketcher.Constraint("Equal", 7, 8))
sketch3.addConstraint(Sketcher.Constraint("Equal", 8, 9))
sketch3.addConstraint(Sketcher.Constraint("Equal", 9, 10))
sketch3.addConstraint(Sketcher.Constraint("Equal", 10, 11))
sketch3.addConstraint(Sketcher.Constraint("Equal", 11, 12))
sketch3.addConstraint(Sketcher.Constraint("Equal", 12, 13))
sketch3.addConstraint(Sketcher.Constraint("Equal", 13, 14))
sketch3.addConstraint(Sketcher.Constraint("Equal", 14, 15))
sketch3.addConstraint(Sketcher.Constraint("Equal", 15, 17))
sketch3.addConstraint(Sketcher.Constraint("Equal", 16, 18))
sketch3.addConstraint(Sketcher.Constraint("Equal", 17, 19))
sketch3.addConstraint(Sketcher.Constraint("Equal", 18, 20))
sketch3.addConstraint(Sketcher.Constraint("Equal", 19, 21))
sketch3.addConstraint(Sketcher.Constraint("Equal", 20, 22))
sketch3.addConstraint(Sketcher.Constraint("Equal", 21, 23))
sketch3.addConstraint(Sketcher.Constraint("Equal", 23, 24))
sketch3.addConstraint(Sketcher.Constraint("Equal", 24, 25))
sketch3.addConstraint(Sketcher.Constraint("Equal", 25, 26))
sketch3.addConstraint(Sketcher.Constraint("Equal", 26, 27))
sketch3.addConstraint(Sketcher.Constraint("Equal", 27, 28))
sketch3.addConstraint(Sketcher.Constraint("Equal", 22, 29))
sketch3.addConstraint(Sketcher.Constraint("Equal", 28, 30))
sketch3.addConstraint(Sketcher.Constraint("Equal", 29, 31))
sketch3.addConstraint(Sketcher.Constraint("Equal", 30, 32))
sketch3.addConstraint(Sketcher.Constraint("Equal", 31, 33))
sketch3.addConstraint(Sketcher.Constraint("Equal", 32, 34))
sketch3.addConstraint(Sketcher.Constraint("Equal", 33, 35))
sketch3.addConstraint(Sketcher.Constraint("Equal", 34, 36))
sketch3.addConstraint(Sketcher.Constraint("Equal", 35, 37))
sketch3.addConstraint(Sketcher.Constraint("Equal", 36, 38))
sketch3.addConstraint(Sketcher.Constraint("Equal", 38, 39))
sketch3.addConstraint(Sketcher.Constraint("Equal", 39, 40))
sketch3.addConstraint(Sketcher.Constraint("Equal", 40, 41))
sketch3.addConstraint(Sketcher.Constraint("Equal", 41, 42))
sketch3.addConstraint(Sketcher.Constraint("Equal", 42, 43))
sketch3.addConstraint(Sketcher.Constraint("Equal", 43, 44))
sketch3.addConstraint(Sketcher.Constraint("Symmetric", 0, 2, 1, 2, -1, 1))
sketch3.addConstraint(Sketcher.Constraint("Symmetric", 7, 3, 10, 3, -2))
sketch3.addConstraint(Sketcher.Constraint("Symmetric", 8, 3, 11, 3, -2))
sketch3.addConstraint(Sketcher.Constraint("Symmetric", 4, 3, 12, 3, -2))
sketch3.addConstraint(Sketcher.Constraint("Symmetric", 6, 3, 13, 3, -2))
sketch3.addConstraint(Sketcher.Constraint("Symmetric", 5, 3, 14, 3, -2))
sketch3.addConstraint(Sketcher.Constraint("Symmetric", 23, 3, 30, 3, -2))
sketch3.addConstraint(Sketcher.Constraint("Symmetric", 22, 3, 31, 3, -2))
sketch3.addConstraint(Sketcher.Constraint("Symmetric", 21, 3, 32, 3, -2))
sketch3.addConstraint(Sketcher.Constraint("Symmetric", 20, 3, 33, 3, -2))
sketch3.addConstraint(Sketcher.Constraint("Symmetric", 19, 3, 34, 3, -2))
sketch3.addConstraint(Sketcher.Constraint("Symmetric", 18, 3, 35, 3, -2))
sketch3.addConstraint(Sketcher.Constraint("Symmetric", 17, 3, 36, 3, -2))
sketch3.addConstraint(Sketcher.Constraint("Symmetric", 16, 3, 37, 3, -2))
sketch3.addConstraint(Sketcher.Constraint("Symmetric", 15, 3, 38, 3, -2))
sketch3.addConstraint(Sketcher.Constraint("Symmetric", 27, 3, 39, 3, -2))
sketch3.addConstraint(Sketcher.Constraint("Symmetric", 28, 3, 41, 3, -2))
sketch3.addConstraint(Sketcher.Constraint("Symmetric", 25, 3, 42, 3, -2))
sketch3.addConstraint(Sketcher.Constraint("Symmetric", 24, 3, 43, 3, -2))
sketch3.addConstraint(Sketcher.Constraint("Symmetric", 26, 3, 44, 3, -2))
sketch3.addConstraint(Sketcher.Constraint("PointOnObject", 9, 3, -2))
sketch3.addConstraint(Sketcher.Constraint("PointOnObject", 29, 3, -2))
sketch3.addConstraint(Sketcher.Constraint("PointOnObject", 40, 3, -2))
sketch3.addConstraint(Sketcher.Constraint("Horizontal", 5, 3, 6, 3))
sketch3.addConstraint(Sketcher.Constraint("Horizontal", 4, 3, 7, 3))
sketch3.addConstraint(Sketcher.Constraint("Horizontal", 6, 3, 8, 3))
sketch3.addConstraint(Sketcher.Constraint("Horizontal", 7, 3, 9, 3))
sketch3.addConstraint(Sketcher.Constraint("Horizontal", 15, 3, 16, 3))
sketch3.addConstraint(Sketcher.Constraint("Horizontal", 16, 3, 17, 3))
sketch3.addConstraint(Sketcher.Constraint("Horizontal", 17, 3, 18, 3))
sketch3.addConstraint(Sketcher.Constraint("Horizontal", 18, 3, 19, 3))
sketch3.addConstraint(Sketcher.Constraint("Horizontal", 19, 3, 20, 3))
sketch3.addConstraint(Sketcher.Constraint("Horizontal", 20, 3, 21, 3))
sketch3.addConstraint(Sketcher.Constraint("Horizontal", 21, 3, 22, 3))
sketch3.addConstraint(Sketcher.Constraint("Horizontal", 22, 3, 23, 3))
sketch3.addConstraint(Sketcher.Constraint("Horizontal", 24, 3, 25, 3))
sketch3.addConstraint(Sketcher.Constraint("Horizontal", 25, 3, 27, 3))
sketch3.addConstraint(Sketcher.Constraint("Horizontal", 26, 3, 28, 3))
sketch3.addConstraint(Sketcher.Constraint("Horizontal", 23, 3, 29, 3))
sketch3.addConstraint(Sketcher.Constraint("Horizontal", 28, 3, 40, 3))
sketch3.addConstraint(Sketcher.Constraint("Vertical", 4, 3, 16, 3))
sketch3.addConstraint(Sketcher.Constraint("Vertical", 7, 3, 20, 3))
sketch3.addConstraint(Sketcher.Constraint("Vertical", 5, 3, 24, 3))
sketch3.addConstraint(Sketcher.Constraint("Vertical", 6, 3, 25, 3))
sketch3.addConstraint(Sketcher.Constraint("Vertical", 16, 3, 26, 3))
sketch3.addConstraint(Sketcher.Constraint("Vertical", 8, 3, 27, 3))
sketch3.addConstraint(Sketcher.Constraint("Vertical", 20, 3, 28, 3))
sketch3.addConstraint(Sketcher.Constraint("Diameter", 4, Q("4 mm")))
sketch3.addConstraint(Sketcher.Constraint("Diameter", 16, Q("8 mm")))
sketch3.addConstraint(Sketcher.Constraint("DistanceX", 1, 2, 1, 1, Q("160 mm")))
sketch3.addConstraint(Sketcher.Constraint("DistanceY", 0, 2, 0, 1, Q("32 mm")))
sketch3.addConstraint(Sketcher.Constraint("DistanceX", -1, 1, 4, 3, Q("64 mm")))
sketch3.addConstraint(Sketcher.Constraint("DistanceY", -1, 1, 4, 3, Q("8 mm")))
sketch3.addConstraint(Sketcher.Constraint("DistanceX", -1, 1, 7, 3, Q("32 mm")))
sketch3.addConstraint(Sketcher.Constraint("DistanceX", -1, 1, 15, 3, Q("72 mm")))
sketch3.addConstraint(Sketcher.Constraint("DistanceY", -1, 1, 15, 3, Q("16 mm")))
sketch3.addConstraint(Sketcher.Constraint("DistanceX", -1, 1, 17, 3, Q("56 mm")))
sketch3.addConstraint(Sketcher.Constraint("DistanceX", -1, 1, 18, 3, Q("48 mm")))
sketch3.addConstraint(Sketcher.Constraint("DistanceX", -1, 1, 19, 3, Q("40 mm")))
sketch3.addConstraint(Sketcher.Constraint("DistanceX", -1, 1, 21, 3, Q("24 mm")))
sketch3.addConstraint(Sketcher.Constraint("DistanceX", -1, 1, 22, 3, Q("16 mm")))
sketch3.addConstraint(Sketcher.Constraint("DistanceX", -1, 1, 23, 3, Q("8 mm")))
sketch3.addConstraint(Sketcher.Constraint("DistanceY", -1, 1, 26, 3, Q("24 mm")))
sketch3.addConstraint(Sketcher.Constraint("DistanceX", 8, 3, 5, 3, Q("64 mm")))
sketch3.addConstraint(Sketcher.Constraint("DistanceX", 11, 3, 6, 3, Q("64 mm")))
sketch3.addConstraint(Sketcher.Constraint("DistanceX", 8, 3, 6, 3, Q("52.686292 mm")))
sketch3.addConstraint(Sketcher.Constraint("DistanceY", -1, 1, 5, 3, Q("10.343146 mm")))
sketch3.addConstraint(Sketcher.Constraint("DistanceY", -1, 1, 24, 3, Q("21.656854 mm")))
pad3 = doc.addObject("PartDesign::Pad", "Pad002")
body.addObject(pad3)
pad3.Profile = sketch3
pad3.Length = 2
pad3.Reversed = True
doc.recompute()

fillet = doc.addObject("PartDesign::Fillet", "Fillet")
body.addObject(fillet)
fillet.Base = (pad3, edges_at(pad3, [
    (0, -16, 0),
    (0, 16, 0),
    (80, -15, 32),
    (80, 15, 32),
    (-80, -15, 32),
    (-80, 15, 32),
]))
fillet.Radius = 2

doc.recompute()
